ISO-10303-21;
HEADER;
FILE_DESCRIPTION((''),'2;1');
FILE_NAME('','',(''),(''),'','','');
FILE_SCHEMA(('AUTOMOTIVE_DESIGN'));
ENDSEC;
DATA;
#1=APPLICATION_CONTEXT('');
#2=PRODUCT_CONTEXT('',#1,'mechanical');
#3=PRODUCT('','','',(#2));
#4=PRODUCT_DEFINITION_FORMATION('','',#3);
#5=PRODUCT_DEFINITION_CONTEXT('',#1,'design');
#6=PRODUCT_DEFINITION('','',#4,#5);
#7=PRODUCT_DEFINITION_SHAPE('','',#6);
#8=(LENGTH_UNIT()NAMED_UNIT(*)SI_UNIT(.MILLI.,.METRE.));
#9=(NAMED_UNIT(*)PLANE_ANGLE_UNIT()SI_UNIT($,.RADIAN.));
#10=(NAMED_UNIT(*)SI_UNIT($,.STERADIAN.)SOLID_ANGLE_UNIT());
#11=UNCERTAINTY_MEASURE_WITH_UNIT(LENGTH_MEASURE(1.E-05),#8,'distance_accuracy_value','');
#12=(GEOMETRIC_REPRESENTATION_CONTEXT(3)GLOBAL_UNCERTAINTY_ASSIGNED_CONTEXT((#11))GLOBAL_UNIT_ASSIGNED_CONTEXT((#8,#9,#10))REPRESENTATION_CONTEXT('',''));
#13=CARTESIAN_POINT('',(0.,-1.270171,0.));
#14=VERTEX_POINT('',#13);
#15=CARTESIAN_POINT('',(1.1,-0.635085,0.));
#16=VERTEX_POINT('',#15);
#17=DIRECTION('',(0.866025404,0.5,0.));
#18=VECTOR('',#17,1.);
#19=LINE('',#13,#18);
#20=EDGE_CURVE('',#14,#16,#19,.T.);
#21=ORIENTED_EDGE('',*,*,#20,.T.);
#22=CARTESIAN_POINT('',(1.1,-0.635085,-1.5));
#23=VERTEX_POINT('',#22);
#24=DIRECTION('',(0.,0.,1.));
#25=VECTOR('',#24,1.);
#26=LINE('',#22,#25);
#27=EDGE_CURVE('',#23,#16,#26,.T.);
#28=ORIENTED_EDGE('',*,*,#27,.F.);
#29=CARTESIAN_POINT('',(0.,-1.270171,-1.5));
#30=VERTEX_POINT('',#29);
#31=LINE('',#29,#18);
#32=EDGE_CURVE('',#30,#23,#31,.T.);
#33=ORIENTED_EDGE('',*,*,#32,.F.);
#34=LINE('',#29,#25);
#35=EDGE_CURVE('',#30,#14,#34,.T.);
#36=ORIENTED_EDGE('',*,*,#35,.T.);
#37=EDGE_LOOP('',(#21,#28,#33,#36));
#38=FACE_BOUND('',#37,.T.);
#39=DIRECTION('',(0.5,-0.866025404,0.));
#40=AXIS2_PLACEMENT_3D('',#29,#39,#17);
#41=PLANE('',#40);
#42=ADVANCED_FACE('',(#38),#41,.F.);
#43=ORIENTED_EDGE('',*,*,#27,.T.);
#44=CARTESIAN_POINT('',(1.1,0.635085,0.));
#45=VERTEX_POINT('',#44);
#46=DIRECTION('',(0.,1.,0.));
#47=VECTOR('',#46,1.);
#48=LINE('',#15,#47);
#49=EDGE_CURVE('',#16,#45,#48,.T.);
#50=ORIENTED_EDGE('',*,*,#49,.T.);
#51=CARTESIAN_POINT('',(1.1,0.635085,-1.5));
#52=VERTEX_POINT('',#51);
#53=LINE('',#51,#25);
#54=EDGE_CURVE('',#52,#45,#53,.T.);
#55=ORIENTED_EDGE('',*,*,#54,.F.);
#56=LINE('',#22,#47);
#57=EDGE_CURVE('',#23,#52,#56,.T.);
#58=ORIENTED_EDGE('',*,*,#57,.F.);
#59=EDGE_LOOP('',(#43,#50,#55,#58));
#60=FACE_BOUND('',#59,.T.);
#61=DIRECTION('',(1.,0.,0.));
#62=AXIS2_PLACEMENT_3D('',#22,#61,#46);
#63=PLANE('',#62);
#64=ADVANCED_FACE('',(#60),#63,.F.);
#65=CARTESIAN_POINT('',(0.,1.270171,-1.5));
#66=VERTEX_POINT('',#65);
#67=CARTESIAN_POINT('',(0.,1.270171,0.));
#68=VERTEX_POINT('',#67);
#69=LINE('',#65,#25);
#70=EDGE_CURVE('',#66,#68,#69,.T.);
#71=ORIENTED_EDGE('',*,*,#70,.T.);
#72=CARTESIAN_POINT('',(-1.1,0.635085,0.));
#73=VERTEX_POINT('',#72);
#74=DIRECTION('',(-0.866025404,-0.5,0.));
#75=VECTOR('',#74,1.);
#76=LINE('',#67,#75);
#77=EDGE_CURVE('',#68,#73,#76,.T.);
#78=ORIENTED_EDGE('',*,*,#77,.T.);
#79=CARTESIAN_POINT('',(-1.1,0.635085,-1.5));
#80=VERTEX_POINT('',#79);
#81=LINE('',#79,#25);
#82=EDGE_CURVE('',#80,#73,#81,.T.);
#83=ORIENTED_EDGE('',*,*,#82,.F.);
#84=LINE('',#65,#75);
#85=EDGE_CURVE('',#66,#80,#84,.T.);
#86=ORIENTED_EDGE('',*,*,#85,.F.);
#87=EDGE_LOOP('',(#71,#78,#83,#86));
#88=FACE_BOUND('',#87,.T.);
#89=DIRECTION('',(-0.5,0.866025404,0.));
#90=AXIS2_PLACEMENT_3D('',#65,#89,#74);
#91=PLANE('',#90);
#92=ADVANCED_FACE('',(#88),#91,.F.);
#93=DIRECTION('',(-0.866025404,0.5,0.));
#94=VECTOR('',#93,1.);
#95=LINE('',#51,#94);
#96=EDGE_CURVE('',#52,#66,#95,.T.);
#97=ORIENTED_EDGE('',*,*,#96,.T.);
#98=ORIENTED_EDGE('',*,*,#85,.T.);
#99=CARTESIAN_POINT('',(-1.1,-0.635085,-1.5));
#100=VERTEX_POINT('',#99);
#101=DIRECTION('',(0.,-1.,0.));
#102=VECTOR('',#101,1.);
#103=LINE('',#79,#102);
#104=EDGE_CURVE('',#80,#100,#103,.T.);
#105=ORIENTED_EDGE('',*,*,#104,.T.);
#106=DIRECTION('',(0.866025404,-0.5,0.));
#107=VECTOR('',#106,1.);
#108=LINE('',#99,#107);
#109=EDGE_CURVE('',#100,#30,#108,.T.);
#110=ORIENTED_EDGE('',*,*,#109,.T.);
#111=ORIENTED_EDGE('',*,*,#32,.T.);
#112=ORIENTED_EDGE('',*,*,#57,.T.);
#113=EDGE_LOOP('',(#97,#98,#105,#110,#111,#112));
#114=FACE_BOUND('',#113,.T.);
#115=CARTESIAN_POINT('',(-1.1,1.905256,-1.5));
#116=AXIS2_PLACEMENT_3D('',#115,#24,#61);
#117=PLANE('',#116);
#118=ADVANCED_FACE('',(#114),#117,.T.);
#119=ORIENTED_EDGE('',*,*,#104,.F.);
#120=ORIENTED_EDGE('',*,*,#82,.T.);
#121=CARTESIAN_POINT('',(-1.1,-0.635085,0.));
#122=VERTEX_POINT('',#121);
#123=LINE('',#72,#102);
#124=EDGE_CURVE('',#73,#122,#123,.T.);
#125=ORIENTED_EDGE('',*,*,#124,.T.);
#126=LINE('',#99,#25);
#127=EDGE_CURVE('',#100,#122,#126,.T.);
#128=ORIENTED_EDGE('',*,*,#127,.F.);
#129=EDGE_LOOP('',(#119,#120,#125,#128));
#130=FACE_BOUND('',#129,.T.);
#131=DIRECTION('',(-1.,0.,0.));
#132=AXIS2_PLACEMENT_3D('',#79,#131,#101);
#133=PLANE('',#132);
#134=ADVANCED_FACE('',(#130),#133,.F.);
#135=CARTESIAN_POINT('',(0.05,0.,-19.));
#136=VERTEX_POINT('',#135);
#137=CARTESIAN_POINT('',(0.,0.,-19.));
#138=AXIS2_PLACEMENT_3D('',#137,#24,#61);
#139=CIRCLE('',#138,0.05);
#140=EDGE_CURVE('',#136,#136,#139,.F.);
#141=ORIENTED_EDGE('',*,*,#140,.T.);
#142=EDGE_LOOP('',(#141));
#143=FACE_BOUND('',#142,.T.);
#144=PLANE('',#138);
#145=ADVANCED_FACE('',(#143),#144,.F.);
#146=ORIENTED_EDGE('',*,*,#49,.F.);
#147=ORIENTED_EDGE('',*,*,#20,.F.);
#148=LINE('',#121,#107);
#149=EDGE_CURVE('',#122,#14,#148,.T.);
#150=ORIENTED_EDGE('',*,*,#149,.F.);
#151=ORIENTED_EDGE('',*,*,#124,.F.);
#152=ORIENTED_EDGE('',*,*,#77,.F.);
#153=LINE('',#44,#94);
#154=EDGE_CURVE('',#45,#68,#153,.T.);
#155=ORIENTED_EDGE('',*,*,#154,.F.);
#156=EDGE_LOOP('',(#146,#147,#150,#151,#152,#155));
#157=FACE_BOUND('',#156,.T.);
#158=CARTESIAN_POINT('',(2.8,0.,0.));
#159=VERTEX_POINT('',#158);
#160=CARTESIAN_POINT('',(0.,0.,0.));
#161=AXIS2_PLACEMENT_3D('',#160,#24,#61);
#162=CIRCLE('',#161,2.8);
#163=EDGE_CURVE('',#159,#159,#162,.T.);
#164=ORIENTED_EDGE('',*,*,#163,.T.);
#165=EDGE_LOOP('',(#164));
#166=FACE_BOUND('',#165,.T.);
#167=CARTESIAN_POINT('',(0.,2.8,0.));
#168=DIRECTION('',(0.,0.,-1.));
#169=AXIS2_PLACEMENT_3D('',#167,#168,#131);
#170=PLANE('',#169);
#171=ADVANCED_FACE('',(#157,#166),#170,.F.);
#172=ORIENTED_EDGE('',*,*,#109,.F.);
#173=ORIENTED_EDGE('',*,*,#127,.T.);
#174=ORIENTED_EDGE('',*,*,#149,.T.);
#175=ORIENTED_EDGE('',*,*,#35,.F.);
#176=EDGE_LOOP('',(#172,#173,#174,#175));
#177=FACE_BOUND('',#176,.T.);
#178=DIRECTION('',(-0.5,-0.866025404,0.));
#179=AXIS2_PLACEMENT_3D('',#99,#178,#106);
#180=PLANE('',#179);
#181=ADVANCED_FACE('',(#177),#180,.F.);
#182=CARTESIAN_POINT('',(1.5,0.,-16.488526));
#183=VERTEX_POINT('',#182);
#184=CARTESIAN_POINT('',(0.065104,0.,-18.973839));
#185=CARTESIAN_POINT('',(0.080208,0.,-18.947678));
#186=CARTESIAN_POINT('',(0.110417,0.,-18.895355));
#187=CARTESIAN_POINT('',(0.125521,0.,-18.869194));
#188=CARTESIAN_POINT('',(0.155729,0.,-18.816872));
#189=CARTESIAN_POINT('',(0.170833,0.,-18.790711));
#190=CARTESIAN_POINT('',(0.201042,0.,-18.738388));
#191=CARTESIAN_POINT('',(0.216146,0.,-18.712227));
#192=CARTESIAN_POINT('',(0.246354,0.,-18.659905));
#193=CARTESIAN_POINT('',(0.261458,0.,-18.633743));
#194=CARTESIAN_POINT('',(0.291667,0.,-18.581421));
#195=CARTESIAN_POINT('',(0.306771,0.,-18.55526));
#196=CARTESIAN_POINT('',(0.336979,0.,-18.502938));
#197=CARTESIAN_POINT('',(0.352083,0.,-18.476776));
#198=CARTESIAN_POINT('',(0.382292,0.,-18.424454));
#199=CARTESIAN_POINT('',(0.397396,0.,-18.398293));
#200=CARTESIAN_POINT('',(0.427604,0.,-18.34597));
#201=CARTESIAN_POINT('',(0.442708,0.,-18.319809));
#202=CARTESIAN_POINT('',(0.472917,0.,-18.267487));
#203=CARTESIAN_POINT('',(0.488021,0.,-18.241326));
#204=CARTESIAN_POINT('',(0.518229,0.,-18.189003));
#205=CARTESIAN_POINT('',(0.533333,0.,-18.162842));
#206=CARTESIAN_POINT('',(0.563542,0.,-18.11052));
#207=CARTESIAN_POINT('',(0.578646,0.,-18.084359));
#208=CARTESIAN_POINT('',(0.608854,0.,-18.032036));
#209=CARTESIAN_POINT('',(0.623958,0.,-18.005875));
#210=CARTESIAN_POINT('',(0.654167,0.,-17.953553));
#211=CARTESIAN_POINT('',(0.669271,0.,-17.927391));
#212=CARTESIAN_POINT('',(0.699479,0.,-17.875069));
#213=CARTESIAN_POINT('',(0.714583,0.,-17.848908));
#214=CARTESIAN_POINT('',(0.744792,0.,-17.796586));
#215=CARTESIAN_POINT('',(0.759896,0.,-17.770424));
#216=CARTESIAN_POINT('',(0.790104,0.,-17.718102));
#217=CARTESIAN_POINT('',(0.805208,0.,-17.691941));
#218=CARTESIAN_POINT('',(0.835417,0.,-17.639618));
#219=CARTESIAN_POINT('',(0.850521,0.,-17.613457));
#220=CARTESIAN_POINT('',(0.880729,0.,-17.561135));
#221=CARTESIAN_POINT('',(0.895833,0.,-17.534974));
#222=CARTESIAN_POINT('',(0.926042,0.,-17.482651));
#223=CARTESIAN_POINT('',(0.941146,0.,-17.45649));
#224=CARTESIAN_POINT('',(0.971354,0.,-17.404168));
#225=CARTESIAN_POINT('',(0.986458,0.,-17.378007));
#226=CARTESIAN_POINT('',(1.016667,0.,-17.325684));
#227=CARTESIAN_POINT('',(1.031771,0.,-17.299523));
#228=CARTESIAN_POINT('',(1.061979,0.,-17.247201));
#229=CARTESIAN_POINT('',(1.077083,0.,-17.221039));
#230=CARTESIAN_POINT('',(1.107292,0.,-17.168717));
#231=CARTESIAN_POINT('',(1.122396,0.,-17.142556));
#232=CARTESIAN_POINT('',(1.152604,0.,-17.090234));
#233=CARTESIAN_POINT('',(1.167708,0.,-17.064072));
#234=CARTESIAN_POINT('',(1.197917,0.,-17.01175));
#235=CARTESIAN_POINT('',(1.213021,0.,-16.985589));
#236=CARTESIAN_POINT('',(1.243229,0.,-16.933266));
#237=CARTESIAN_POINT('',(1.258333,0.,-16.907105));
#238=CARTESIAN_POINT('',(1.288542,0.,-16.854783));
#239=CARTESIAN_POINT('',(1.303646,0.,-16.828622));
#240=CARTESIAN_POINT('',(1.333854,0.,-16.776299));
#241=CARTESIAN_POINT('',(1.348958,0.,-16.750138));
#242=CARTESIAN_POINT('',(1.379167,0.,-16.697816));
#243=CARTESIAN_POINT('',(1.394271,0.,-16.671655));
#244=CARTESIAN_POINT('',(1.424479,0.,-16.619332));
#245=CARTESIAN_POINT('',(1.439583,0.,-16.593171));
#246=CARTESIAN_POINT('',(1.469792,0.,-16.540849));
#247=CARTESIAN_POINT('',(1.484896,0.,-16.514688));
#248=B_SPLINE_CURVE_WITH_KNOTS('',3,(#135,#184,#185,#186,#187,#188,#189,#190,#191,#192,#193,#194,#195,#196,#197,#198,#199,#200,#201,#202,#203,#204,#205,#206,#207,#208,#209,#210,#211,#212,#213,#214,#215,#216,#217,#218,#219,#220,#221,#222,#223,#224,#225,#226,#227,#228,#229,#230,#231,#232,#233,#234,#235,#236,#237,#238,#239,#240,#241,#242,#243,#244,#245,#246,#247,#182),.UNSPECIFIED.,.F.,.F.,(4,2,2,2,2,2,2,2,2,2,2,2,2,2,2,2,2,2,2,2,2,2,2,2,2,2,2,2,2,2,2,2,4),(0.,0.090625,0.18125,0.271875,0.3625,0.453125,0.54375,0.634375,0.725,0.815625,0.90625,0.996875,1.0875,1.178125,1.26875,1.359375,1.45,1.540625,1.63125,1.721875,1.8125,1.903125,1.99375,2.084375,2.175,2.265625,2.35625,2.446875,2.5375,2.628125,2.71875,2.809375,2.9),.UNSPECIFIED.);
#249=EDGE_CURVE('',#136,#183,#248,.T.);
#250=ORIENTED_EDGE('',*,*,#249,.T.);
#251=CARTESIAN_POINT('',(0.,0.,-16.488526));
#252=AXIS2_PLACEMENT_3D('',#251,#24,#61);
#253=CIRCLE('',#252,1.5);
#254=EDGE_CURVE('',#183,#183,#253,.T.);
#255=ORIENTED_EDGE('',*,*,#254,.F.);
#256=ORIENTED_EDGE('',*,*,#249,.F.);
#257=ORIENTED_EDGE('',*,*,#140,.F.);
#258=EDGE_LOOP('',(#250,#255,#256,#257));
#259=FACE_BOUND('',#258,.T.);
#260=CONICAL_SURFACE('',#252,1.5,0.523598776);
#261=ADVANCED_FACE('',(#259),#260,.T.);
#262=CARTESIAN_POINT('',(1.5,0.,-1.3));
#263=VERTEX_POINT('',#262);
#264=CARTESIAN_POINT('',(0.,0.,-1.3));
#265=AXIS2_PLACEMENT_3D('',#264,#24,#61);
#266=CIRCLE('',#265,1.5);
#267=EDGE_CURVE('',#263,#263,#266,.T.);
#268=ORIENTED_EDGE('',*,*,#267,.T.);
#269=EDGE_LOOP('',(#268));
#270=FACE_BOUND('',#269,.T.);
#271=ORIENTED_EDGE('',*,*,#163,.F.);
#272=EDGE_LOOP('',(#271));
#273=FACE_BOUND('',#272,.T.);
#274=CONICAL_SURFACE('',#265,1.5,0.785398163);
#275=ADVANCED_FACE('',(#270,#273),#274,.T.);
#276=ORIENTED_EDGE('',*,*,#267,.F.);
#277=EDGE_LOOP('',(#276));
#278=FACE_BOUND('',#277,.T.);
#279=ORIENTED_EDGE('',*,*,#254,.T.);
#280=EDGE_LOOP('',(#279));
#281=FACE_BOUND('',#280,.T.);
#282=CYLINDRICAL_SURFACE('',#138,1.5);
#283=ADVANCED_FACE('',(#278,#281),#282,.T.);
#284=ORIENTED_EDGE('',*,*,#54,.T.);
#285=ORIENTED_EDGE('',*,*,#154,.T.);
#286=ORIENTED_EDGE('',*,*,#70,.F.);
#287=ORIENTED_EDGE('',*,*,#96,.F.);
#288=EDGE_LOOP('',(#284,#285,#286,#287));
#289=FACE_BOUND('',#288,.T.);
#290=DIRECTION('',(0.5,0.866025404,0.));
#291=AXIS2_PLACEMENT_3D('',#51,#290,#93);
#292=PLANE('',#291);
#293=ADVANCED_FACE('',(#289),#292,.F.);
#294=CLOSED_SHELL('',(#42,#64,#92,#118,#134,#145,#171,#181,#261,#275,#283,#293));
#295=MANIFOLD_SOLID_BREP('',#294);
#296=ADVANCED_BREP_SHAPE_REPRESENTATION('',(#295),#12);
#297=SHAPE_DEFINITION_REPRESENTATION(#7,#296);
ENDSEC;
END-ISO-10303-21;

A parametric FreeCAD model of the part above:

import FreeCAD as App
import Part
import Sketcher
from FreeCAD import Vector
Q = App.Units.Quantity


def edges_at(feature, points):
    """Names of the edges that pass closest to the given points."""
    edges = feature.Shape.Edges
    near = lambda p: min(range(len(edges)), key=lambda i: edges[i].distToShape(Part.Vertex(*p))[0])
    return sorted({f"Edge{near(p) + 1}" for p in points})


def add_polygon(sketch, points):
    """Adds a closed chain of lines whose ends are joined by coincident constraints."""
    first, n = sketch.GeometryCount, len(points)
    for a, b in zip(points, points[1:] + points[:1]):
        sketch.addGeometry(Part.LineSegment(App.Vector(*a, 0), App.Vector(*b, 0)), False)
    for i in range(n):
        sketch.addConstraint(Sketcher.Constraint("Coincident", first + i, 2, first + (i + 1) % n, 1))

doc = App.newDocument("Part")
body = doc.addObject("PartDesign::Body", "Body")

sketch1 = doc.addObject("Sketcher::SketchObject", "Sketch")
body.addObject(sketch1)
sketch1.AttachmentSupport = (doc.YZ_Plane, [""])
sketch1.MapMode = "FlatFace"
add_polygon(sketch1, [(1.5, -1.3), (2.8, 0), (0, 0), (0, -1.3)])
sketch1.addConstraint(Sketcher.Constraint("Horizontal", 1))
sketch1.addConstraint(Sketcher.Constraint("Vertical", 2))
sketch1.addConstraint(Sketcher.Constraint("Horizontal", 3))
sketch1.addConstraint(Sketcher.Constraint("Coincident", 1, 2, -1, 1))
sketch1.addConstraint(Sketcher.Constraint("Angle", 0, Q("45 deg")))
sketch1.addConstraint(Sketcher.Constraint("DistanceX", 1, 2, 1, 1, Q("2.8 mm")))
sketch1.addConstraint(Sketcher.Constraint("DistanceX", 3, 1, 3, 2, Q("1.5 mm")))
revolution = doc.addObject("PartDesign::Revolution", "Revolution")
body.addObject(revolution)
revolution.Profile = sketch1
revolution.ReferenceAxis = (sketch1, ["V_Axis"])
revolution.Angle = 360

sketch2 = doc.addObject("Sketcher::SketchObject", "Sketch001")
body.addObject(sketch2)
sketch2.AttachmentSupport = (doc.XY_Plane, [""])
sketch2.MapMode = "FlatFace"
sketch2.addGeometry(Part.Circle(Vector(0, 0, 0), Vector(0, 0, 1), 1.5), False)
sketch2.addConstraint(Sketcher.Constraint("Coincident", 0, 3, -1, 1))
sketch2.addConstraint(Sketcher.Constraint("Diameter", 0, Q("3 mm")))
pad1 = doc.addObject("PartDesign::Pad", "Pad")
body.addObject(pad1)
pad1.Profile = sketch2
pad1.Length = 19
pad1.Reversed = True

sketch3 = doc.addObject("Sketcher::SketchObject", "Sketch002")
body.addObject(sketch3)
sketch3.AttachmentSupport = (doc.XY_Plane, [""])
sketch3.MapMode = "FlatFace"
add_polygon(sketch3, [(0, 1.3), (-1.1, 0.6), (-1.1, -0.6), (0, -1.3), (1.1, -0.6), (1.1, 0.6)])
sketch3.addConstraint(Sketcher.Constraint("Vertical", 1))
sketch3.addConstraint(Sketcher.Constraint("Vertical", 4))
sketch3.addConstraint(Sketcher.Constraint("Symmetric", 0, 2, 3, 2, -1, 1))
sketch3.addConstraint(Sketcher.Constraint("Symmetric", 2, 2, 5, 2, -1, 1))
sketch3.addConstraint(Sketcher.Constraint("PointOnObject", 2, 2, -2))
sketch3.addConstraint(Sketcher.Constraint("Parallel", 2, 5))
sketch3.addConstraint(Sketcher.Constraint("Horizontal", 1, 2, 3, 2))
sketch3.addConstraint(Sketcher.Constraint("Angle", 0, Q("-150 deg")))
sketch3.addConstraint(Sketcher.Constraint("DistanceX", 0, 2, -1, 1, Q("1.1 mm")))
sketch3.addConstraint(Sketcher.Constraint("DistanceY", 1, 2, 1, 1, Q("1.270171 mm")))
pocket1 = doc.addObject("PartDesign::Pocket", "Pocket")
body.addObject(pocket1)
pocket1.Profile = sketch3
pocket1.Length = 1.5
doc.recompute()

chamfer = doc.addObject("PartDesign::Chamfer", "Chamfer")
body.addObject(chamfer)
chamfer.Base = (pocket1, edges_at(pocket1, [(-1.5, 0, -19)]))
chamfer.ChamferType = "Two distances"
chamfer.Size = 1.45
chamfer.Size2 = 2.511474
chamfer.FlipDirection = True

doc.recompute()
